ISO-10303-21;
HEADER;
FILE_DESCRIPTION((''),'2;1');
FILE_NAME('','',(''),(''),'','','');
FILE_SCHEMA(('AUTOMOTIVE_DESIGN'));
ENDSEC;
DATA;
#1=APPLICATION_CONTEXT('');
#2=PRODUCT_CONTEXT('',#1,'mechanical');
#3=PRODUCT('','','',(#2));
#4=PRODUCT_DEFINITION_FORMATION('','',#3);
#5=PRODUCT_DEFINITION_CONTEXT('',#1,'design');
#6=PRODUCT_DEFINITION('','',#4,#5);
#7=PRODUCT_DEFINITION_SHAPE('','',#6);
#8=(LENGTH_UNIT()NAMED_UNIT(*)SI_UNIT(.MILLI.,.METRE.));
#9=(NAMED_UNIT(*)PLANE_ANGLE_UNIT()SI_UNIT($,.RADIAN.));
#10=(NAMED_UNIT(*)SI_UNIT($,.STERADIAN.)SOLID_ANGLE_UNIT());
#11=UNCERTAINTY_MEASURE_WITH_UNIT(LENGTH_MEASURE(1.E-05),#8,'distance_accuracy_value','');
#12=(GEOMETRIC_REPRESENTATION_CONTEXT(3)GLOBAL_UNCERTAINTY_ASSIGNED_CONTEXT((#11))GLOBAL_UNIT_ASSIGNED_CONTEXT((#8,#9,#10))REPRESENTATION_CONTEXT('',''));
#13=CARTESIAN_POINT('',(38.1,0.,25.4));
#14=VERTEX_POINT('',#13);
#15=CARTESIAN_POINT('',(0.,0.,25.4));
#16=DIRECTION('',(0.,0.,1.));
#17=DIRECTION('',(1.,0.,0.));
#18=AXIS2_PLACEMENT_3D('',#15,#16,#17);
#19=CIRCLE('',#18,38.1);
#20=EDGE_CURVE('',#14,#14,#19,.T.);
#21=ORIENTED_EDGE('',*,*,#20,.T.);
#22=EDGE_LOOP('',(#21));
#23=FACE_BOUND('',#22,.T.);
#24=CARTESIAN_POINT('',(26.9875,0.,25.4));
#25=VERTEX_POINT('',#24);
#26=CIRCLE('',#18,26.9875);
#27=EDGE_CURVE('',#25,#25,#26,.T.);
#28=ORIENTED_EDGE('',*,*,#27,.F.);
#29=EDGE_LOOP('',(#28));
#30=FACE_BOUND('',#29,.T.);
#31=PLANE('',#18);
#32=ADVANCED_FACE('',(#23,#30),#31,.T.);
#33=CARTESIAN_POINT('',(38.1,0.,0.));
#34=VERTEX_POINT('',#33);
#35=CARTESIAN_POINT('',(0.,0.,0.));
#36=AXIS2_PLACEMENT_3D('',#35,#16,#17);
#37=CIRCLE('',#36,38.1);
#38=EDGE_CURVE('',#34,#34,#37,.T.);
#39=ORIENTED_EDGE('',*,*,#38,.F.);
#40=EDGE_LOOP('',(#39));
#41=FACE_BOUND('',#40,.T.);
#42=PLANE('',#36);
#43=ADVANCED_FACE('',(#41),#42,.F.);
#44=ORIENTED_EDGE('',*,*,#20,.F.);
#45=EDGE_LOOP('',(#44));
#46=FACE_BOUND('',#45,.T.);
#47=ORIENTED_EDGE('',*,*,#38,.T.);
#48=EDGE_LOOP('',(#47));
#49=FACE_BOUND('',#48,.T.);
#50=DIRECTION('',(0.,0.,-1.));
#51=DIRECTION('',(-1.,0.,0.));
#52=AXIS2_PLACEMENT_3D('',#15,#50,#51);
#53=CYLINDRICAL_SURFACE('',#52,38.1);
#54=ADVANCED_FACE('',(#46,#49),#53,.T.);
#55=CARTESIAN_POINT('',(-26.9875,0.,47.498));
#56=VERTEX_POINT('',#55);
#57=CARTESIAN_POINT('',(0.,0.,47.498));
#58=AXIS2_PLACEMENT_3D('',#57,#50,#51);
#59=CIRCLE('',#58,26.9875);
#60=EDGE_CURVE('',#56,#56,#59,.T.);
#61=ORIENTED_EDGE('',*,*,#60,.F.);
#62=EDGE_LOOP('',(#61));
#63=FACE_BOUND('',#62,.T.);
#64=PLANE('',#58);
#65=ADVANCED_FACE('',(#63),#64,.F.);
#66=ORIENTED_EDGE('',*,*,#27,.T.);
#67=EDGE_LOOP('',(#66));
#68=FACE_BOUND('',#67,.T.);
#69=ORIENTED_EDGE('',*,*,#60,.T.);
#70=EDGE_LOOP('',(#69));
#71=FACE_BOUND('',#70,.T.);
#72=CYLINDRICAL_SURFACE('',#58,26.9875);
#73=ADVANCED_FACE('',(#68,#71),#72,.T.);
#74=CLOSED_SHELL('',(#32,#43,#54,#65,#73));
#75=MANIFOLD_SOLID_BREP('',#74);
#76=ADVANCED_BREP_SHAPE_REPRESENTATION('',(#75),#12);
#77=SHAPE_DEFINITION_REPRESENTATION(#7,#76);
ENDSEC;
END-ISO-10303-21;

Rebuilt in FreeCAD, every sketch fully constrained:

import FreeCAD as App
import Part
import Sketcher
Q = App.Units.Quantity

doc = App.newDocument("Part")
params = doc.addObject("Spreadsheet::Sheet", "Params")
for row, (alias, value) in enumerate([
    ("sketch1_diameter", "3 in"),
    ("sketch1_diameter2", "0.75 in"),
    ("pad1_length", "1 in"),
    ("sketch2_diameter", "2.125 in"),
    ("pad2_length", "1.87 in"),
], start=1):
    params.set(f"A{row}", alias)
    params.set(f"B{row}", "=" + value)
    params.setAlias(f"B{row}", alias)

body = doc.addObject("PartDesign::Body", "Body")

sketch1 = doc.addObject("Sketcher::SketchObject", "Sketch")
body.addObject(sketch1)
sketch1.AttachmentSupport = (doc.XY_Plane, [""])
sketch1.MapMode = "FlatFace"
sketch1.addGeometry(Part.Circle(App.Vector(0, 0, 0), App.Vector(0, 0, 1), 38), False)
sketch1.addGeometry(Part.Circle(App.Vector(0, 0, 0), App.Vector(0, 0, 1), 10), False)
sketch1.addConstraint(Sketcher.Constraint("Coincident", 0, 3, -1, 1))
sketch1.addConstraint(Sketcher.Constraint("Coincident", 1, 3, -1, 1))
sketch1.addConstraint(Sketcher.Constraint("Diameter", 0, Q("3 in")))
sketch1.addConstraint(Sketcher.Constraint("Diameter", 1, Q("0.75 in")))
sketch1.setExpression("Constraints[2]", "Params.sketch1_diameter")
sketch1.setExpression("Constraints[3]", "Params.sketch1_diameter2")
pad1 = doc.addObject("PartDesign::Pad", "Pad")
body.addObject(pad1)
pad1.Profile = sketch1
pad1.setExpression("Length", "Params.pad1_length")

sketch2 = doc.addObject("Sketcher::SketchObject", "Sketch001")
body.addObject(sketch2)
sketch2.AttachmentSupport = (doc.XY_Plane, [""])
sketch2.MapMode = "FlatFace"
sketch2.addGeometry(Part.Circle(App.Vector(0, 0, 0), App.Vector(0, 0, 1), 27), False)
sketch2.addConstraint(Sketcher.Constraint("Coincident", 0, 3, -1, 1))
sketch2.addConstraint(Sketcher.Constraint("Diameter", 0, Q("2.125 in")))
sketch2.setExpression("Constraints[1]", "Params.sketch2_diameter")
pad2 = doc.addObject("PartDesign::Pad", "Pad001")
body.addObject(pad2)
pad2.Profile = sketch2
pad2.setExpression("Length", "Params.pad2_length")

doc.recompute()
